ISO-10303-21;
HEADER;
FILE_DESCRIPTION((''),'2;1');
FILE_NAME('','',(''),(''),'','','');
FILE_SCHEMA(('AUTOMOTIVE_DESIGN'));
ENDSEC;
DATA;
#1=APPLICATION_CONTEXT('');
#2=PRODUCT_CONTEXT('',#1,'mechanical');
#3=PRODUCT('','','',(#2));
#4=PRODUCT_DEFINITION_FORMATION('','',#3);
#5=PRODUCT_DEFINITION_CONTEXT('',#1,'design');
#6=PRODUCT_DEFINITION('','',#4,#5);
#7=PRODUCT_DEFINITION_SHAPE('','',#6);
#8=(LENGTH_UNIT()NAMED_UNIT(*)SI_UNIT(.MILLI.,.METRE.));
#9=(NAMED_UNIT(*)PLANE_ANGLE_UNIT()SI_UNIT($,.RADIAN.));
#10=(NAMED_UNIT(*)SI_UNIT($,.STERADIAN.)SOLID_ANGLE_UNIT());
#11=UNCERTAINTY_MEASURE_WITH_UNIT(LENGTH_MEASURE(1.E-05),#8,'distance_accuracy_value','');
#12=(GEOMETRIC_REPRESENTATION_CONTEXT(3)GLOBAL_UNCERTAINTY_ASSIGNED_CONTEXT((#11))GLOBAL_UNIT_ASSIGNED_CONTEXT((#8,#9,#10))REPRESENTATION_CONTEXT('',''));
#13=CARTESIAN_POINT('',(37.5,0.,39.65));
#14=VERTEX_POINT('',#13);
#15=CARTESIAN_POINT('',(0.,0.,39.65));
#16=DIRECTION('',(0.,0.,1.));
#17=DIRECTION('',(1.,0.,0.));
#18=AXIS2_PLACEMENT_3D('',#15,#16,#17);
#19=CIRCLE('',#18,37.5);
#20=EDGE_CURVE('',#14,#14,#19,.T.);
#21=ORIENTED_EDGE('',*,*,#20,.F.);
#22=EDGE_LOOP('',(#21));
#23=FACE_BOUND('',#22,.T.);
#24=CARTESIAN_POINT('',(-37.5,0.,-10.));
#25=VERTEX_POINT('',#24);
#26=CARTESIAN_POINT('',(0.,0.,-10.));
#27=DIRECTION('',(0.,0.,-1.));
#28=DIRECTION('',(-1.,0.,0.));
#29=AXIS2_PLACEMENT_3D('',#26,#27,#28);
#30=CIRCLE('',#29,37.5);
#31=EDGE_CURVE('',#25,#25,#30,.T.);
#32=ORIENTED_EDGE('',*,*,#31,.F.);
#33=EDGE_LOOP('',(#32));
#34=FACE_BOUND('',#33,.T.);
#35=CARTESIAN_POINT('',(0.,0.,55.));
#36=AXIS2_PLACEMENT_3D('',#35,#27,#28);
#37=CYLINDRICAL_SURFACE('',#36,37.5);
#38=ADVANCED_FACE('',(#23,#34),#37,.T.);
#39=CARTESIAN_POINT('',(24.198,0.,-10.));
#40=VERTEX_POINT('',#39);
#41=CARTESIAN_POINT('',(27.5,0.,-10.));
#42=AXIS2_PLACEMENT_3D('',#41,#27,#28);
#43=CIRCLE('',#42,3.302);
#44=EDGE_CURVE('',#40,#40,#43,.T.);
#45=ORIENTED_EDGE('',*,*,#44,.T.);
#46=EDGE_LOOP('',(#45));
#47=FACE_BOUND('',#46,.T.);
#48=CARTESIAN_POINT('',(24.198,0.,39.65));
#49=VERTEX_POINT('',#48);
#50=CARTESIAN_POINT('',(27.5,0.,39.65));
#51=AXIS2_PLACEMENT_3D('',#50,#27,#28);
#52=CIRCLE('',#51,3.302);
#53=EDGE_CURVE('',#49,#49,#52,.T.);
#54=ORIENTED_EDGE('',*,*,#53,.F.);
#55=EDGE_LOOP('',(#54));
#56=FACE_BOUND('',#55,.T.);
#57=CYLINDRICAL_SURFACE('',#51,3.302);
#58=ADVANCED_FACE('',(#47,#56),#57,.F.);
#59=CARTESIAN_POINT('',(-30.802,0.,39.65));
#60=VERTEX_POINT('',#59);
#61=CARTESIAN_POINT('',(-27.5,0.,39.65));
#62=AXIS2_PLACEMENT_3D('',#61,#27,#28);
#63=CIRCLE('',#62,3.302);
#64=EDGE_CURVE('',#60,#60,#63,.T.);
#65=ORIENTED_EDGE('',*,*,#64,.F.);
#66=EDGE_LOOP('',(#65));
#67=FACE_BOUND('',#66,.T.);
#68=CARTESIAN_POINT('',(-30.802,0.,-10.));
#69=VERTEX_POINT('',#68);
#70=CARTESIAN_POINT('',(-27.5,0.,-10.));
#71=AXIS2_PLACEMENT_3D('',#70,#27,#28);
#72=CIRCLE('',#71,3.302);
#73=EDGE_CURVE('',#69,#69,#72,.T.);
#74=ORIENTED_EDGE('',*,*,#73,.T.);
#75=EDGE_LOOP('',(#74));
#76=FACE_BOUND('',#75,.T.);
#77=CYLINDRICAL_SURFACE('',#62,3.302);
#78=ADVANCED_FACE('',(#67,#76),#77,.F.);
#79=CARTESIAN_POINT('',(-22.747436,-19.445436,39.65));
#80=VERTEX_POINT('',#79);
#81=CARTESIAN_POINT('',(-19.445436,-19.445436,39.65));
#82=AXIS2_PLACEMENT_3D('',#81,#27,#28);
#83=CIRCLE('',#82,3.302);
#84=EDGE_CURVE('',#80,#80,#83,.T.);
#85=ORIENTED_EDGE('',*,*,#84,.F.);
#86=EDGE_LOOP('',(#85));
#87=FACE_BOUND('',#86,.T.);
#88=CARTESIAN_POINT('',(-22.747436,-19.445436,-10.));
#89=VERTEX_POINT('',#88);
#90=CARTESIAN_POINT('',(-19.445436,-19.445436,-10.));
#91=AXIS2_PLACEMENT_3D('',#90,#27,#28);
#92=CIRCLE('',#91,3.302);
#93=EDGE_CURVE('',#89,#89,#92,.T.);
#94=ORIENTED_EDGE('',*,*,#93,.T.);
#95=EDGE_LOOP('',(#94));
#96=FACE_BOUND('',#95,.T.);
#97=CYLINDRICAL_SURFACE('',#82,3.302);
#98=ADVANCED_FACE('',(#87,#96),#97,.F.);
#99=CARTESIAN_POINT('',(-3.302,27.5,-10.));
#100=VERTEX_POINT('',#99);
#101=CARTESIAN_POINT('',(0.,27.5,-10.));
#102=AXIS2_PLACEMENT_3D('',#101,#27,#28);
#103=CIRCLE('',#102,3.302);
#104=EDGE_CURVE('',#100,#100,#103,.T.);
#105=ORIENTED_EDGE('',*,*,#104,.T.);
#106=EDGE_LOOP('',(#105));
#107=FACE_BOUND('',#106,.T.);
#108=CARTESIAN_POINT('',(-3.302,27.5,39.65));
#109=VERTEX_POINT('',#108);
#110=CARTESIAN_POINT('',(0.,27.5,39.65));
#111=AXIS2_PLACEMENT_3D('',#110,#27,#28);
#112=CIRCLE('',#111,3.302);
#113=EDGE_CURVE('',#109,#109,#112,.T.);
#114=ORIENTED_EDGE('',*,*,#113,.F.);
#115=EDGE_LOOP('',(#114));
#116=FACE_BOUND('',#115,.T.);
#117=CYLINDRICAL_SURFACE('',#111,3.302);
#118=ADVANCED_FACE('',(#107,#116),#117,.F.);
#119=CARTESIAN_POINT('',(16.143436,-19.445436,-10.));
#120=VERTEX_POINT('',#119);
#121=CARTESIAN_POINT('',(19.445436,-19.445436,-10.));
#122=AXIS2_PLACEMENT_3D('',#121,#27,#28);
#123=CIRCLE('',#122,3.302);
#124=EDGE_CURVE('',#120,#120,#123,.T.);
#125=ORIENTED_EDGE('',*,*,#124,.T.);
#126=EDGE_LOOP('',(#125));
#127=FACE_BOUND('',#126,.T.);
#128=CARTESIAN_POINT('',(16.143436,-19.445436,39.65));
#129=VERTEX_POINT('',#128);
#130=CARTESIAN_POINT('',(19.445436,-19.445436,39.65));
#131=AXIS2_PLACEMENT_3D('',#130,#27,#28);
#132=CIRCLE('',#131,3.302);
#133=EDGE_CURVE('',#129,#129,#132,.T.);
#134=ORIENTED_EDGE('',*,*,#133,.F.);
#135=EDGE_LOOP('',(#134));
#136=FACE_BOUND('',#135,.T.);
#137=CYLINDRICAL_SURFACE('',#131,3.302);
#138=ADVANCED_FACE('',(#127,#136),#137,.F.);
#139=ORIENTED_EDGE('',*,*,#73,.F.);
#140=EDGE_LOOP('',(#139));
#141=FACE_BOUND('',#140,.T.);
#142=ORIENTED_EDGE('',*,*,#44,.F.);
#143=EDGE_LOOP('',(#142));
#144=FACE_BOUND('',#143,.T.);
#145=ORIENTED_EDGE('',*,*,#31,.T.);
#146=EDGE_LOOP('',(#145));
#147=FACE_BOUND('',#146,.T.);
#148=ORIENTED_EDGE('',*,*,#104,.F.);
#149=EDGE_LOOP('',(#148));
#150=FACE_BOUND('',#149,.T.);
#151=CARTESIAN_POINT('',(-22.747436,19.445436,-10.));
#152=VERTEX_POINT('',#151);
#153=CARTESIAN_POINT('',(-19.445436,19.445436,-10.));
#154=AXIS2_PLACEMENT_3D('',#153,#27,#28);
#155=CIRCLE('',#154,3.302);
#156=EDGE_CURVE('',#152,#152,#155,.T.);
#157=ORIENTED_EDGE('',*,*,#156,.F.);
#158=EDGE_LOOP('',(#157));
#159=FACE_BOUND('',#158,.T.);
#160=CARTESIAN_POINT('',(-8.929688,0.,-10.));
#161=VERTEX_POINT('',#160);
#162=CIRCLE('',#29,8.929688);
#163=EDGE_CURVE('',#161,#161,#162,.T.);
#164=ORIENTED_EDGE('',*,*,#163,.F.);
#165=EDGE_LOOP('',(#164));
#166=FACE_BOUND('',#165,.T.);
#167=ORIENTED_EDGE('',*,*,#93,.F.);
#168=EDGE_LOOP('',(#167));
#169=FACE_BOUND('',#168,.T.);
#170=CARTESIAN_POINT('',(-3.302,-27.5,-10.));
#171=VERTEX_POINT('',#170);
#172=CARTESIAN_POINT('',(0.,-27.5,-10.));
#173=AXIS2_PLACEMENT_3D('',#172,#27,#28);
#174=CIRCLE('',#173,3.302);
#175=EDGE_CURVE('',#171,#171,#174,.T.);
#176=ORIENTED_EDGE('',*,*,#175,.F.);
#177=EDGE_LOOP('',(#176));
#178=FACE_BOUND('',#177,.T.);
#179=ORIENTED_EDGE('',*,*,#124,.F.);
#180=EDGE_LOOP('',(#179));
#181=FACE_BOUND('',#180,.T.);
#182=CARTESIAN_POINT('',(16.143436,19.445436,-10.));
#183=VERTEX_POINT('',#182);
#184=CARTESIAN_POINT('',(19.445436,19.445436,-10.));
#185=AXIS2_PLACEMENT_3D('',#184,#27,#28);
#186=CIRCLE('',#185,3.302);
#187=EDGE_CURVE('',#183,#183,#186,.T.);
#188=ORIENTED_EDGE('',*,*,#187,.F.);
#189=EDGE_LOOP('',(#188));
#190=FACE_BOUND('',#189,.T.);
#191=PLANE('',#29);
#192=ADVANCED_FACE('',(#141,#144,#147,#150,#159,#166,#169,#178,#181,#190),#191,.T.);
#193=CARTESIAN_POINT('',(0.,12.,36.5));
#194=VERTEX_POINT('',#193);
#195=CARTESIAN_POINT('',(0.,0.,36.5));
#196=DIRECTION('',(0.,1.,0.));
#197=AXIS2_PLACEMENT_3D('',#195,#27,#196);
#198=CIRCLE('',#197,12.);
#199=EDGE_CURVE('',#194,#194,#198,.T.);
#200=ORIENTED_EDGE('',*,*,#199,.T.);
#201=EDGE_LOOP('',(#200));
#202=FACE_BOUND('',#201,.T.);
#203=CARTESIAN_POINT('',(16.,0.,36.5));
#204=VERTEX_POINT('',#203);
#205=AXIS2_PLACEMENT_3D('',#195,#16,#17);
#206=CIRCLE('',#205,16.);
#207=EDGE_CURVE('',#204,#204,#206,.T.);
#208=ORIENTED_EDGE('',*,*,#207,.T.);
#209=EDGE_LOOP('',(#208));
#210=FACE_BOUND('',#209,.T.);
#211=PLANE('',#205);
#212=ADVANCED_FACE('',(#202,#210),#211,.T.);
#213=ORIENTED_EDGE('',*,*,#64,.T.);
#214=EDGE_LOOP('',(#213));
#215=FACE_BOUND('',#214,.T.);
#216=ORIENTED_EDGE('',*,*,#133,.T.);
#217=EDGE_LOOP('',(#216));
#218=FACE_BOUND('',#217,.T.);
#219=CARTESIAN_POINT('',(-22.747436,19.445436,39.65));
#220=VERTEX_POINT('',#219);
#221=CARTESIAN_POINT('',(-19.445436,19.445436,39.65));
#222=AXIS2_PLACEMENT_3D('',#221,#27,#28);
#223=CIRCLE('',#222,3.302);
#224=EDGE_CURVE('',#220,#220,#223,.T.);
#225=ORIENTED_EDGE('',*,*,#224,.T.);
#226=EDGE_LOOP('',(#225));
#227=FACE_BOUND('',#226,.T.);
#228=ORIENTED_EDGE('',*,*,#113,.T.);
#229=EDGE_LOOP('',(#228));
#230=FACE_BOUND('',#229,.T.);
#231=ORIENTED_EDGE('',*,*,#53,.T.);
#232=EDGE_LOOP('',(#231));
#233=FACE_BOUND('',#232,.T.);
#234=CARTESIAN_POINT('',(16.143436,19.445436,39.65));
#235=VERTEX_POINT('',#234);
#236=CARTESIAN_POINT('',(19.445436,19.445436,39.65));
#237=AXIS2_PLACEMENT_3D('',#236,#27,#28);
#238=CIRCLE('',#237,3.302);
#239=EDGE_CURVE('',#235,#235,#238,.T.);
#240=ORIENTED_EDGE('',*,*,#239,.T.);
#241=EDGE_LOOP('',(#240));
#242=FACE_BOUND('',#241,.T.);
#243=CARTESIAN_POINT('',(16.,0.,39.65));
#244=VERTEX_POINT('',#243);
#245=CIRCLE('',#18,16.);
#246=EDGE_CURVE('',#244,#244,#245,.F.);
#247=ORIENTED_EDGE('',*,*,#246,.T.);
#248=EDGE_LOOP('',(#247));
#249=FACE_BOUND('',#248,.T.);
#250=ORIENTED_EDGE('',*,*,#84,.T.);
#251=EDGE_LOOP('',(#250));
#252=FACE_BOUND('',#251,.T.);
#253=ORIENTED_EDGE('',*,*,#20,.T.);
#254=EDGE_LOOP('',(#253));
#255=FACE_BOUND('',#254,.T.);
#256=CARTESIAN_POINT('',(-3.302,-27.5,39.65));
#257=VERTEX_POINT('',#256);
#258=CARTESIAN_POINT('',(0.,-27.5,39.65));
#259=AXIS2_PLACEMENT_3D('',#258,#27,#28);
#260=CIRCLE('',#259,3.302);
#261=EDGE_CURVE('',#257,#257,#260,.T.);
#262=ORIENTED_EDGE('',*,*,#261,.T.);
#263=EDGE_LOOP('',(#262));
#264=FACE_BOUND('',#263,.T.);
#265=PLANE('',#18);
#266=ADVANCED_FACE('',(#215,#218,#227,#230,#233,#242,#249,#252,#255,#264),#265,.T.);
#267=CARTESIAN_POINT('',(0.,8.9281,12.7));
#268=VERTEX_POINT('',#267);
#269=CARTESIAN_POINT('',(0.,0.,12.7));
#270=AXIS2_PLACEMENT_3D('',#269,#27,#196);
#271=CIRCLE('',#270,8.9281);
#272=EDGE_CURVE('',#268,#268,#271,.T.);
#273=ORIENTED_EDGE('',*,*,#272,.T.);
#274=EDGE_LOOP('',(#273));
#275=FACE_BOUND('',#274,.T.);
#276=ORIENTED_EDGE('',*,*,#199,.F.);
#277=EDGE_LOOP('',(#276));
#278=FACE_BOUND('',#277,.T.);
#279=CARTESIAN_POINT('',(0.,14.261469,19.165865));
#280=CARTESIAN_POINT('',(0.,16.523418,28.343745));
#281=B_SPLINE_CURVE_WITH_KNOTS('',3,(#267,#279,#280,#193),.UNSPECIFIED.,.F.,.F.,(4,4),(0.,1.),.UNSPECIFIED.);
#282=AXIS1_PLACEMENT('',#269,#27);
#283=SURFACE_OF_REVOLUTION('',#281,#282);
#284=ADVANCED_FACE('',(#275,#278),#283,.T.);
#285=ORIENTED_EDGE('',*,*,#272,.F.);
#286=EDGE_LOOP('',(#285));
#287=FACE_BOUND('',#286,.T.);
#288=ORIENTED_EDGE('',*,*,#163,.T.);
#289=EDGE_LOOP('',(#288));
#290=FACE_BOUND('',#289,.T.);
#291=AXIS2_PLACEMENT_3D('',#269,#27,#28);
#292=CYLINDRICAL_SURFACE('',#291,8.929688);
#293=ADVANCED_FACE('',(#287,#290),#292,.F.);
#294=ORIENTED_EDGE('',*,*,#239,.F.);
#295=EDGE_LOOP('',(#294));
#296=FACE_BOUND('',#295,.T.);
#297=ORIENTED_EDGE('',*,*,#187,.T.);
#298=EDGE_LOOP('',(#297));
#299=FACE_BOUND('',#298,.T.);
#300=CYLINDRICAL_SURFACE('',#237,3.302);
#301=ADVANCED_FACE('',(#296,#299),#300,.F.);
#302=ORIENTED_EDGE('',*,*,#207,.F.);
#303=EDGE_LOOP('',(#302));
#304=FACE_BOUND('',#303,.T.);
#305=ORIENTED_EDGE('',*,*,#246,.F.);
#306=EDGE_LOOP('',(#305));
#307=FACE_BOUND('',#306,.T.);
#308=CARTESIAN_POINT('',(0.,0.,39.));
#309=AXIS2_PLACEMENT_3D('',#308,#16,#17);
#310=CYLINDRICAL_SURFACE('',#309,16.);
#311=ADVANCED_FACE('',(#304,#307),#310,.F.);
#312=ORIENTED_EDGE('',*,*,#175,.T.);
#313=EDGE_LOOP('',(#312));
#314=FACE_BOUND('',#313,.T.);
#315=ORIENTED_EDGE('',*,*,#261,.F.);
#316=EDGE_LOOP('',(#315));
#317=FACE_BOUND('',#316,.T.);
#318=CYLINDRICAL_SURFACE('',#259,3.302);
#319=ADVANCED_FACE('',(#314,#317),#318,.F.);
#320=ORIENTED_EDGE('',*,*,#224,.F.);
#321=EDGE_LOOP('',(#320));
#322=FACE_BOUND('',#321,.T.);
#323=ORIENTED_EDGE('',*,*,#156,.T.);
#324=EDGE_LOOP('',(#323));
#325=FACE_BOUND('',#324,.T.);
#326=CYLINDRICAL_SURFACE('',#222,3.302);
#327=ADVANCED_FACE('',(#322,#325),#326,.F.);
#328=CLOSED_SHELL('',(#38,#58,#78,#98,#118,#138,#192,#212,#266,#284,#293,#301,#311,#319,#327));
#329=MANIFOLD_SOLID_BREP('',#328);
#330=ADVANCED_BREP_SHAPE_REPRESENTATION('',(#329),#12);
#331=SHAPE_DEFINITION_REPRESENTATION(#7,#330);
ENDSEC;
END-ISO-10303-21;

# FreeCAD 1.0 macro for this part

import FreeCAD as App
import Part
import Sketcher

V = App.Vector

doc = App.newDocument("Part")
body = doc.addObject("PartDesign::Body", "Body")

# Sketch on XY plane
sketch1 = body.newObject("Sketcher::SketchObject", "Sketch")
sketch1.AttachmentSupport = (doc.getObject("XY_Plane"), [""])
sketch1.MapMode = "FlatFace"
sketch1.addGeometry(Part.Circle(V(0, 0, 0), V(0, 0, 1), 38), False)
sketch1.addConstraint(Sketcher.Constraint("Coincident", 0, 3, -1, 1))
sketch1.addConstraint(Sketcher.Constraint("Diameter", 0, 75.0))
pad1 = body.newObject("PartDesign::Pad", "Pad")
pad1.Profile = sketch1
pad1.Length = 55

# Sketch on XY plane
sketch2 = body.newObject("Sketcher::SketchObject", "Sketch001")
sketch2.AttachmentSupport = (doc.getObject("XY_Plane"), [""])
sketch2.MapMode = "FlatFace"
sketch2.AttachmentOffset = App.Placement(V(0, 0, 55), App.Rotation())
sketch2.addGeometry(Part.Circle(V(0, 0, 0), V(0, 0, 1), 16), False)
sketch2.addConstraint(Sketcher.Constraint("Coincident", 0, 3, -1, 1))
sketch2.addConstraint(Sketcher.Constraint("Diameter", 0, 32.0))
pocket1 = body.newObject("PartDesign::Pocket", "Pocket")
pocket1.Profile = sketch2
pocket1.Length = 16

# Sketch on XY plane
sketch3 = body.newObject("Sketcher::SketchObject", "Sketch002")
sketch3.AttachmentSupport = (doc.getObject("XY_Plane"), [""])
sketch3.MapMode = "FlatFace"
sketch3.AttachmentOffset = App.Placement(V(0, 0, 39), App.Rotation())
sketch3.addGeometry(Part.Circle(V(0, 0, 0), V(0, 0, 1), 16), False)
sketch3.addConstraint(Sketcher.Constraint("Coincident", 0, 3, -1, 1))
sketch3.addConstraint(Sketcher.Constraint("Diameter", 0, 32.0))
pocket2 = body.newObject("PartDesign::Pocket", "Pocket001")
pocket2.Profile = sketch3
pocket2.Length = 2.5

# Sketch on YZ plane
sketch4 = body.newObject("Sketcher::SketchObject", "Sketch003")
sketch4.AttachmentSupport = (doc.getObject("YZ_Plane"), [""])
sketch4.MapMode = "FlatFace"
sketch4.addGeometry(Part.LineSegment(V(0, 12.7, 0), V(8.9281, 12.7, 0)), False)
sketch4.addGeometry(Part.BSplineCurve([V(12, 36.5, 0), V(16.523418, 28.343745, 0), V(14.261469, 19.165865, 0), V(8.9281, 12.7, 0)], [4, 4], [0, 1], False, 3, [1, 1, 1, 1], False), False)
sketch4.addGeometry(Part.LineSegment(V(12, 36.5, 0), V(0, 36.5, 0)), False)
sketch4.addGeometry(Part.LineSegment(V(0, 36.5, 0), V(0, 12.7, 0)), False)
sketch4.addConstraint(Sketcher.Constraint("Block", 1))
sketch4.addConstraint(Sketcher.Constraint("Coincident", 0, 2, 1, 2))
sketch4.addConstraint(Sketcher.Constraint("Coincident", 1, 1, 2, 1))
sketch4.addConstraint(Sketcher.Constraint("Coincident", 2, 2, 3, 1))
sketch4.addConstraint(Sketcher.Constraint("Coincident", 3, 2, 0, 1))
sketch4.addConstraint(Sketcher.Constraint("Horizontal", 0))
sketch4.addConstraint(Sketcher.Constraint("Horizontal", 2))
sketch4.addConstraint(Sketcher.Constraint("Vertical", 3))
sketch4.addConstraint(Sketcher.Constraint("PointOnObject", 2, 2, -2))
groove = body.newObject("PartDesign::Groove", "Groove")
groove.Profile = sketch4
groove.ReferenceAxis = (sketch4, ["V_Axis"])
groove.Angle = 360

# Sketch on XY plane
sketch5 = body.newObject("Sketcher::SketchObject", "Sketch004")
sketch5.AttachmentSupport = (doc.getObject("XY_Plane"), [""])
sketch5.MapMode = "FlatFace"
sketch5.addGeometry(Part.Circle(V(0, 0, 0), V(0, 0, 1), 9), False)
sketch5.addConstraint(Sketcher.Constraint("Coincident", 0, 3, -1, 1))
sketch5.addConstraint(Sketcher.Constraint("Diameter", 0, 17.859375))
pocket3 = body.newObject("PartDesign::Pocket", "Pocket002")
pocket3.Profile = sketch5
pocket3.Length = 12.7
pocket3.Reversed = True

# Sketch on XY plane
sketch6 = body.newObject("Sketcher::SketchObject", "Sketch005")
sketch6.AttachmentSupport = (doc.getObject("XY_Plane"), [""])
sketch6.MapMode = "FlatFace"
sketch6.AttachmentOffset = App.Placement(V(0, 0, 39.65), App.Rotation())
sketch6.addGeometry(Part.Circle(V(0, 0, 0), V(0, 0, 1), 38), False)
sketch6.addConstraint(Sketcher.Constraint("Coincident", 0, 3, -1, 1))
sketch6.addConstraint(Sketcher.Constraint("Diameter", 0, 75.0))
pocket4 = body.newObject("PartDesign::Pocket", "Pocket003")
pocket4.Profile = sketch6
pocket4.Length = 15.35
pocket4.Reversed = True

# Sketch on XY plane
sketch7 = body.newObject("Sketcher::SketchObject", "Sketch006")
sketch7.AttachmentSupport = (doc.getObject("XY_Plane"), [""])
sketch7.MapMode = "FlatFace"
sketch7.addGeometry(Part.Circle(V(0, -27.5, 0), V(0, 0, 1), 3.3), False)
sketch7.addGeometry(Part.Circle(V(19.4, -19.4, 0), V(0, 0, 1), 3.3), False)
sketch7.addGeometry(Part.Circle(V(27.5, 0, 0), V(0, 0, 1), 3.3), False)
sketch7.addGeometry(Part.Circle(V(19.4, 19.4, 0), V(0, 0, 1), 3.3), False)
sketch7.addGeometry(Part.Circle(V(0, 27.5, 0), V(0, 0, 1), 3.3), False)
sketch7.addGeometry(Part.Circle(V(-19.4, 19.4, 0), V(0, 0, 1), 3.3), False)
sketch7.addGeometry(Part.Circle(V(-27.5, 0, 0), V(0, 0, 1), 3.3), False)
sketch7.addGeometry(Part.Circle(V(-19.4, -19.4, 0), V(0, 0, 1), 3.3), False)
sketch7.addConstraint(Sketcher.Constraint("Equal", 0, 1))
sketch7.addConstraint(Sketcher.Constraint("Equal", 1, 2))
sketch7.addConstraint(Sketcher.Constraint("Equal", 2, 3))
sketch7.addConstraint(Sketcher.Constraint("Equal", 3, 4))
sketch7.addConstraint(Sketcher.Constraint("Equal", 4, 5))
sketch7.addConstraint(Sketcher.Constraint("Equal", 5, 6))
sketch7.addConstraint(Sketcher.Constraint("Equal", 6, 7))
sketch7.addConstraint(Sketcher.Constraint("Symmetric", 0, 3, 4, 3, -1, 1))
sketch7.addConstraint(Sketcher.Constraint("Symmetric", 1, 3, 5, 3, -1, 1))
sketch7.addConstraint(Sketcher.Constraint("Symmetric", 2, 3, 6, 3, -1, 1))
sketch7.addConstraint(Sketcher.Constraint("Symmetric", 3, 3, 7, 3, -1, 1))
sketch7.addConstraint(Sketcher.Constraint("Symmetric", 3, 3, 5, 3, -2))
sketch7.addConstraint(Sketcher.Constraint("PointOnObject", 0, 3, -2))
sketch7.addConstraint(Sketcher.Constraint("PointOnObject", 2, 3, -1))
sketch7.addConstraint(Sketcher.Constraint("Diameter", 0, 6.604))
sketch7.addConstraint(Sketcher.Constraint("DistanceY", 0, 3, 4, 3, 55.0))
sketch7.addConstraint(Sketcher.Constraint("DistanceX", -1, 1, 2, 3, 27.5))
sketch7.addConstraint(Sketcher.Constraint("DistanceX", -1, 1, 1, 3, 19.445436))
sketch7.addConstraint(Sketcher.Constraint("DistanceY", 1, 3, -1, 1, 19.445436))
pocket5 = body.newObject("PartDesign::Pocket", "Pocket004")
pocket5.Profile = sketch7
pocket5.Type = "ThroughAll"
pocket5.Reversed = True

# Sketch on XY plane
sketch8 = body.newObject("Sketcher::SketchObject", "Sketch007")
sketch8.AttachmentSupport = (doc.getObject("XY_Plane"), [""])
sketch8.MapMode = "FlatFace"
sketch8.AttachmentOffset = App.Placement(V(0, 0, -10), App.Rotation())
sketch8.addGeometry(Part.Circle(V(0, 0, 0), V(0, 0, 1), 37.5), False)
sketch8.addGeometry(Part.Circle(V(19.4, -19.4, 0), V(0, 0, 1), 3.3), False)
sketch8.addGeometry(Part.Circle(V(0, -27.5, 0), V(0, 0, 1), 3.3), False)
sketch8.addGeometry(Part.Circle(V(-19.4, -19.4, 0), V(0, 0, 1), 3.3), False)
sketch8.addGeometry(Part.Circle(V(27.5, 0, 0), V(0, 0, 1), 3.3), False)
sketch8.addGeometry(Part.Circle(V(19.4, 19.4, 0), V(0, 0, 1), 3.3), False)
sketch8.addGeometry(Part.Circle(V(0, 0, 0), V(0, 0, 1), 8.9), False)
sketch8.addGeometry(Part.Circle(V(-27.5, 0, 0), V(0, 0, 1), 3.3), False)
sketch8.addGeometry(Part.Circle(V(0, 27.5, 0), V(0, 0, 1), 3.3), False)
sketch8.addGeometry(Part.Circle(V(-19.4, 19.4, 0), V(0, 0, 1), 3.3), False)
sketch8.addConstraint(Sketcher.Constraint("Coincident", 0, 3, -1, 1))
sketch8.addConstraint(Sketcher.Constraint("Coincident", 6, 3, -1, 1))
sketch8.addConstraint(Sketcher.Constraint("Equal", 1, 2))
sketch8.addConstraint(Sketcher.Constraint("Equal", 2, 3))
sketch8.addConstraint(Sketcher.Constraint("Equal", 3, 4))
sketch8.addConstraint(Sketcher.Constraint("Equal", 4, 5))
sketch8.addConstraint(Sketcher.Constraint("Equal", 5, 7))
sketch8.addConstraint(Sketcher.Constraint("Equal", 7, 8))
sketch8.addConstraint(Sketcher.Constraint("Equal", 8, 9))
sketch8.addConstraint(Sketcher.Constraint("Symmetric", 3, 3, 5, 3, -1, 1))
sketch8.addConstraint(Sketcher.Constraint("Symmetric", 4, 3, 7, 3, -1, 1))
sketch8.addConstraint(Sketcher.Constraint("Symmetric", 2, 3, 8, 3, -1, 1))
sketch8.addConstraint(Sketcher.Constraint("Symmetric", 1, 3, 9, 3, -1, 1))
sketch8.addConstraint(Sketcher.Constraint("Symmetric", 1, 3, 3, 3, -2))
sketch8.addConstraint(Sketcher.Constraint("PointOnObject", 2, 3, -2))
sketch8.addConstraint(Sketcher.Constraint("PointOnObject", 4, 3, -1))
sketch8.addConstraint(Sketcher.Constraint("Diameter", 0, 75.0))
sketch8.addConstraint(Sketcher.Constraint("Diameter", 1, 6.604))
sketch8.addConstraint(Sketcher.Constraint("DistanceY", 2, 3, -1, 1, 27.5))
sketch8.addConstraint(Sketcher.Constraint("DistanceX", -1, 1, 4, 3, 27.5))
sketch8.addConstraint(Sketcher.Constraint("Diameter", 6, 17.859375))
sketch8.addConstraint(Sketcher.Constraint("DistanceX", -1, 1, 1, 3, 19.445436))
sketch8.addConstraint(Sketcher.Constraint("DistanceY", 1, 3, -1, 1, 19.445436))
pad2 = body.newObject("PartDesign::Pad", "Pad001")
pad2.Profile = sketch8
pad2.Length = 10

doc.recompute()
